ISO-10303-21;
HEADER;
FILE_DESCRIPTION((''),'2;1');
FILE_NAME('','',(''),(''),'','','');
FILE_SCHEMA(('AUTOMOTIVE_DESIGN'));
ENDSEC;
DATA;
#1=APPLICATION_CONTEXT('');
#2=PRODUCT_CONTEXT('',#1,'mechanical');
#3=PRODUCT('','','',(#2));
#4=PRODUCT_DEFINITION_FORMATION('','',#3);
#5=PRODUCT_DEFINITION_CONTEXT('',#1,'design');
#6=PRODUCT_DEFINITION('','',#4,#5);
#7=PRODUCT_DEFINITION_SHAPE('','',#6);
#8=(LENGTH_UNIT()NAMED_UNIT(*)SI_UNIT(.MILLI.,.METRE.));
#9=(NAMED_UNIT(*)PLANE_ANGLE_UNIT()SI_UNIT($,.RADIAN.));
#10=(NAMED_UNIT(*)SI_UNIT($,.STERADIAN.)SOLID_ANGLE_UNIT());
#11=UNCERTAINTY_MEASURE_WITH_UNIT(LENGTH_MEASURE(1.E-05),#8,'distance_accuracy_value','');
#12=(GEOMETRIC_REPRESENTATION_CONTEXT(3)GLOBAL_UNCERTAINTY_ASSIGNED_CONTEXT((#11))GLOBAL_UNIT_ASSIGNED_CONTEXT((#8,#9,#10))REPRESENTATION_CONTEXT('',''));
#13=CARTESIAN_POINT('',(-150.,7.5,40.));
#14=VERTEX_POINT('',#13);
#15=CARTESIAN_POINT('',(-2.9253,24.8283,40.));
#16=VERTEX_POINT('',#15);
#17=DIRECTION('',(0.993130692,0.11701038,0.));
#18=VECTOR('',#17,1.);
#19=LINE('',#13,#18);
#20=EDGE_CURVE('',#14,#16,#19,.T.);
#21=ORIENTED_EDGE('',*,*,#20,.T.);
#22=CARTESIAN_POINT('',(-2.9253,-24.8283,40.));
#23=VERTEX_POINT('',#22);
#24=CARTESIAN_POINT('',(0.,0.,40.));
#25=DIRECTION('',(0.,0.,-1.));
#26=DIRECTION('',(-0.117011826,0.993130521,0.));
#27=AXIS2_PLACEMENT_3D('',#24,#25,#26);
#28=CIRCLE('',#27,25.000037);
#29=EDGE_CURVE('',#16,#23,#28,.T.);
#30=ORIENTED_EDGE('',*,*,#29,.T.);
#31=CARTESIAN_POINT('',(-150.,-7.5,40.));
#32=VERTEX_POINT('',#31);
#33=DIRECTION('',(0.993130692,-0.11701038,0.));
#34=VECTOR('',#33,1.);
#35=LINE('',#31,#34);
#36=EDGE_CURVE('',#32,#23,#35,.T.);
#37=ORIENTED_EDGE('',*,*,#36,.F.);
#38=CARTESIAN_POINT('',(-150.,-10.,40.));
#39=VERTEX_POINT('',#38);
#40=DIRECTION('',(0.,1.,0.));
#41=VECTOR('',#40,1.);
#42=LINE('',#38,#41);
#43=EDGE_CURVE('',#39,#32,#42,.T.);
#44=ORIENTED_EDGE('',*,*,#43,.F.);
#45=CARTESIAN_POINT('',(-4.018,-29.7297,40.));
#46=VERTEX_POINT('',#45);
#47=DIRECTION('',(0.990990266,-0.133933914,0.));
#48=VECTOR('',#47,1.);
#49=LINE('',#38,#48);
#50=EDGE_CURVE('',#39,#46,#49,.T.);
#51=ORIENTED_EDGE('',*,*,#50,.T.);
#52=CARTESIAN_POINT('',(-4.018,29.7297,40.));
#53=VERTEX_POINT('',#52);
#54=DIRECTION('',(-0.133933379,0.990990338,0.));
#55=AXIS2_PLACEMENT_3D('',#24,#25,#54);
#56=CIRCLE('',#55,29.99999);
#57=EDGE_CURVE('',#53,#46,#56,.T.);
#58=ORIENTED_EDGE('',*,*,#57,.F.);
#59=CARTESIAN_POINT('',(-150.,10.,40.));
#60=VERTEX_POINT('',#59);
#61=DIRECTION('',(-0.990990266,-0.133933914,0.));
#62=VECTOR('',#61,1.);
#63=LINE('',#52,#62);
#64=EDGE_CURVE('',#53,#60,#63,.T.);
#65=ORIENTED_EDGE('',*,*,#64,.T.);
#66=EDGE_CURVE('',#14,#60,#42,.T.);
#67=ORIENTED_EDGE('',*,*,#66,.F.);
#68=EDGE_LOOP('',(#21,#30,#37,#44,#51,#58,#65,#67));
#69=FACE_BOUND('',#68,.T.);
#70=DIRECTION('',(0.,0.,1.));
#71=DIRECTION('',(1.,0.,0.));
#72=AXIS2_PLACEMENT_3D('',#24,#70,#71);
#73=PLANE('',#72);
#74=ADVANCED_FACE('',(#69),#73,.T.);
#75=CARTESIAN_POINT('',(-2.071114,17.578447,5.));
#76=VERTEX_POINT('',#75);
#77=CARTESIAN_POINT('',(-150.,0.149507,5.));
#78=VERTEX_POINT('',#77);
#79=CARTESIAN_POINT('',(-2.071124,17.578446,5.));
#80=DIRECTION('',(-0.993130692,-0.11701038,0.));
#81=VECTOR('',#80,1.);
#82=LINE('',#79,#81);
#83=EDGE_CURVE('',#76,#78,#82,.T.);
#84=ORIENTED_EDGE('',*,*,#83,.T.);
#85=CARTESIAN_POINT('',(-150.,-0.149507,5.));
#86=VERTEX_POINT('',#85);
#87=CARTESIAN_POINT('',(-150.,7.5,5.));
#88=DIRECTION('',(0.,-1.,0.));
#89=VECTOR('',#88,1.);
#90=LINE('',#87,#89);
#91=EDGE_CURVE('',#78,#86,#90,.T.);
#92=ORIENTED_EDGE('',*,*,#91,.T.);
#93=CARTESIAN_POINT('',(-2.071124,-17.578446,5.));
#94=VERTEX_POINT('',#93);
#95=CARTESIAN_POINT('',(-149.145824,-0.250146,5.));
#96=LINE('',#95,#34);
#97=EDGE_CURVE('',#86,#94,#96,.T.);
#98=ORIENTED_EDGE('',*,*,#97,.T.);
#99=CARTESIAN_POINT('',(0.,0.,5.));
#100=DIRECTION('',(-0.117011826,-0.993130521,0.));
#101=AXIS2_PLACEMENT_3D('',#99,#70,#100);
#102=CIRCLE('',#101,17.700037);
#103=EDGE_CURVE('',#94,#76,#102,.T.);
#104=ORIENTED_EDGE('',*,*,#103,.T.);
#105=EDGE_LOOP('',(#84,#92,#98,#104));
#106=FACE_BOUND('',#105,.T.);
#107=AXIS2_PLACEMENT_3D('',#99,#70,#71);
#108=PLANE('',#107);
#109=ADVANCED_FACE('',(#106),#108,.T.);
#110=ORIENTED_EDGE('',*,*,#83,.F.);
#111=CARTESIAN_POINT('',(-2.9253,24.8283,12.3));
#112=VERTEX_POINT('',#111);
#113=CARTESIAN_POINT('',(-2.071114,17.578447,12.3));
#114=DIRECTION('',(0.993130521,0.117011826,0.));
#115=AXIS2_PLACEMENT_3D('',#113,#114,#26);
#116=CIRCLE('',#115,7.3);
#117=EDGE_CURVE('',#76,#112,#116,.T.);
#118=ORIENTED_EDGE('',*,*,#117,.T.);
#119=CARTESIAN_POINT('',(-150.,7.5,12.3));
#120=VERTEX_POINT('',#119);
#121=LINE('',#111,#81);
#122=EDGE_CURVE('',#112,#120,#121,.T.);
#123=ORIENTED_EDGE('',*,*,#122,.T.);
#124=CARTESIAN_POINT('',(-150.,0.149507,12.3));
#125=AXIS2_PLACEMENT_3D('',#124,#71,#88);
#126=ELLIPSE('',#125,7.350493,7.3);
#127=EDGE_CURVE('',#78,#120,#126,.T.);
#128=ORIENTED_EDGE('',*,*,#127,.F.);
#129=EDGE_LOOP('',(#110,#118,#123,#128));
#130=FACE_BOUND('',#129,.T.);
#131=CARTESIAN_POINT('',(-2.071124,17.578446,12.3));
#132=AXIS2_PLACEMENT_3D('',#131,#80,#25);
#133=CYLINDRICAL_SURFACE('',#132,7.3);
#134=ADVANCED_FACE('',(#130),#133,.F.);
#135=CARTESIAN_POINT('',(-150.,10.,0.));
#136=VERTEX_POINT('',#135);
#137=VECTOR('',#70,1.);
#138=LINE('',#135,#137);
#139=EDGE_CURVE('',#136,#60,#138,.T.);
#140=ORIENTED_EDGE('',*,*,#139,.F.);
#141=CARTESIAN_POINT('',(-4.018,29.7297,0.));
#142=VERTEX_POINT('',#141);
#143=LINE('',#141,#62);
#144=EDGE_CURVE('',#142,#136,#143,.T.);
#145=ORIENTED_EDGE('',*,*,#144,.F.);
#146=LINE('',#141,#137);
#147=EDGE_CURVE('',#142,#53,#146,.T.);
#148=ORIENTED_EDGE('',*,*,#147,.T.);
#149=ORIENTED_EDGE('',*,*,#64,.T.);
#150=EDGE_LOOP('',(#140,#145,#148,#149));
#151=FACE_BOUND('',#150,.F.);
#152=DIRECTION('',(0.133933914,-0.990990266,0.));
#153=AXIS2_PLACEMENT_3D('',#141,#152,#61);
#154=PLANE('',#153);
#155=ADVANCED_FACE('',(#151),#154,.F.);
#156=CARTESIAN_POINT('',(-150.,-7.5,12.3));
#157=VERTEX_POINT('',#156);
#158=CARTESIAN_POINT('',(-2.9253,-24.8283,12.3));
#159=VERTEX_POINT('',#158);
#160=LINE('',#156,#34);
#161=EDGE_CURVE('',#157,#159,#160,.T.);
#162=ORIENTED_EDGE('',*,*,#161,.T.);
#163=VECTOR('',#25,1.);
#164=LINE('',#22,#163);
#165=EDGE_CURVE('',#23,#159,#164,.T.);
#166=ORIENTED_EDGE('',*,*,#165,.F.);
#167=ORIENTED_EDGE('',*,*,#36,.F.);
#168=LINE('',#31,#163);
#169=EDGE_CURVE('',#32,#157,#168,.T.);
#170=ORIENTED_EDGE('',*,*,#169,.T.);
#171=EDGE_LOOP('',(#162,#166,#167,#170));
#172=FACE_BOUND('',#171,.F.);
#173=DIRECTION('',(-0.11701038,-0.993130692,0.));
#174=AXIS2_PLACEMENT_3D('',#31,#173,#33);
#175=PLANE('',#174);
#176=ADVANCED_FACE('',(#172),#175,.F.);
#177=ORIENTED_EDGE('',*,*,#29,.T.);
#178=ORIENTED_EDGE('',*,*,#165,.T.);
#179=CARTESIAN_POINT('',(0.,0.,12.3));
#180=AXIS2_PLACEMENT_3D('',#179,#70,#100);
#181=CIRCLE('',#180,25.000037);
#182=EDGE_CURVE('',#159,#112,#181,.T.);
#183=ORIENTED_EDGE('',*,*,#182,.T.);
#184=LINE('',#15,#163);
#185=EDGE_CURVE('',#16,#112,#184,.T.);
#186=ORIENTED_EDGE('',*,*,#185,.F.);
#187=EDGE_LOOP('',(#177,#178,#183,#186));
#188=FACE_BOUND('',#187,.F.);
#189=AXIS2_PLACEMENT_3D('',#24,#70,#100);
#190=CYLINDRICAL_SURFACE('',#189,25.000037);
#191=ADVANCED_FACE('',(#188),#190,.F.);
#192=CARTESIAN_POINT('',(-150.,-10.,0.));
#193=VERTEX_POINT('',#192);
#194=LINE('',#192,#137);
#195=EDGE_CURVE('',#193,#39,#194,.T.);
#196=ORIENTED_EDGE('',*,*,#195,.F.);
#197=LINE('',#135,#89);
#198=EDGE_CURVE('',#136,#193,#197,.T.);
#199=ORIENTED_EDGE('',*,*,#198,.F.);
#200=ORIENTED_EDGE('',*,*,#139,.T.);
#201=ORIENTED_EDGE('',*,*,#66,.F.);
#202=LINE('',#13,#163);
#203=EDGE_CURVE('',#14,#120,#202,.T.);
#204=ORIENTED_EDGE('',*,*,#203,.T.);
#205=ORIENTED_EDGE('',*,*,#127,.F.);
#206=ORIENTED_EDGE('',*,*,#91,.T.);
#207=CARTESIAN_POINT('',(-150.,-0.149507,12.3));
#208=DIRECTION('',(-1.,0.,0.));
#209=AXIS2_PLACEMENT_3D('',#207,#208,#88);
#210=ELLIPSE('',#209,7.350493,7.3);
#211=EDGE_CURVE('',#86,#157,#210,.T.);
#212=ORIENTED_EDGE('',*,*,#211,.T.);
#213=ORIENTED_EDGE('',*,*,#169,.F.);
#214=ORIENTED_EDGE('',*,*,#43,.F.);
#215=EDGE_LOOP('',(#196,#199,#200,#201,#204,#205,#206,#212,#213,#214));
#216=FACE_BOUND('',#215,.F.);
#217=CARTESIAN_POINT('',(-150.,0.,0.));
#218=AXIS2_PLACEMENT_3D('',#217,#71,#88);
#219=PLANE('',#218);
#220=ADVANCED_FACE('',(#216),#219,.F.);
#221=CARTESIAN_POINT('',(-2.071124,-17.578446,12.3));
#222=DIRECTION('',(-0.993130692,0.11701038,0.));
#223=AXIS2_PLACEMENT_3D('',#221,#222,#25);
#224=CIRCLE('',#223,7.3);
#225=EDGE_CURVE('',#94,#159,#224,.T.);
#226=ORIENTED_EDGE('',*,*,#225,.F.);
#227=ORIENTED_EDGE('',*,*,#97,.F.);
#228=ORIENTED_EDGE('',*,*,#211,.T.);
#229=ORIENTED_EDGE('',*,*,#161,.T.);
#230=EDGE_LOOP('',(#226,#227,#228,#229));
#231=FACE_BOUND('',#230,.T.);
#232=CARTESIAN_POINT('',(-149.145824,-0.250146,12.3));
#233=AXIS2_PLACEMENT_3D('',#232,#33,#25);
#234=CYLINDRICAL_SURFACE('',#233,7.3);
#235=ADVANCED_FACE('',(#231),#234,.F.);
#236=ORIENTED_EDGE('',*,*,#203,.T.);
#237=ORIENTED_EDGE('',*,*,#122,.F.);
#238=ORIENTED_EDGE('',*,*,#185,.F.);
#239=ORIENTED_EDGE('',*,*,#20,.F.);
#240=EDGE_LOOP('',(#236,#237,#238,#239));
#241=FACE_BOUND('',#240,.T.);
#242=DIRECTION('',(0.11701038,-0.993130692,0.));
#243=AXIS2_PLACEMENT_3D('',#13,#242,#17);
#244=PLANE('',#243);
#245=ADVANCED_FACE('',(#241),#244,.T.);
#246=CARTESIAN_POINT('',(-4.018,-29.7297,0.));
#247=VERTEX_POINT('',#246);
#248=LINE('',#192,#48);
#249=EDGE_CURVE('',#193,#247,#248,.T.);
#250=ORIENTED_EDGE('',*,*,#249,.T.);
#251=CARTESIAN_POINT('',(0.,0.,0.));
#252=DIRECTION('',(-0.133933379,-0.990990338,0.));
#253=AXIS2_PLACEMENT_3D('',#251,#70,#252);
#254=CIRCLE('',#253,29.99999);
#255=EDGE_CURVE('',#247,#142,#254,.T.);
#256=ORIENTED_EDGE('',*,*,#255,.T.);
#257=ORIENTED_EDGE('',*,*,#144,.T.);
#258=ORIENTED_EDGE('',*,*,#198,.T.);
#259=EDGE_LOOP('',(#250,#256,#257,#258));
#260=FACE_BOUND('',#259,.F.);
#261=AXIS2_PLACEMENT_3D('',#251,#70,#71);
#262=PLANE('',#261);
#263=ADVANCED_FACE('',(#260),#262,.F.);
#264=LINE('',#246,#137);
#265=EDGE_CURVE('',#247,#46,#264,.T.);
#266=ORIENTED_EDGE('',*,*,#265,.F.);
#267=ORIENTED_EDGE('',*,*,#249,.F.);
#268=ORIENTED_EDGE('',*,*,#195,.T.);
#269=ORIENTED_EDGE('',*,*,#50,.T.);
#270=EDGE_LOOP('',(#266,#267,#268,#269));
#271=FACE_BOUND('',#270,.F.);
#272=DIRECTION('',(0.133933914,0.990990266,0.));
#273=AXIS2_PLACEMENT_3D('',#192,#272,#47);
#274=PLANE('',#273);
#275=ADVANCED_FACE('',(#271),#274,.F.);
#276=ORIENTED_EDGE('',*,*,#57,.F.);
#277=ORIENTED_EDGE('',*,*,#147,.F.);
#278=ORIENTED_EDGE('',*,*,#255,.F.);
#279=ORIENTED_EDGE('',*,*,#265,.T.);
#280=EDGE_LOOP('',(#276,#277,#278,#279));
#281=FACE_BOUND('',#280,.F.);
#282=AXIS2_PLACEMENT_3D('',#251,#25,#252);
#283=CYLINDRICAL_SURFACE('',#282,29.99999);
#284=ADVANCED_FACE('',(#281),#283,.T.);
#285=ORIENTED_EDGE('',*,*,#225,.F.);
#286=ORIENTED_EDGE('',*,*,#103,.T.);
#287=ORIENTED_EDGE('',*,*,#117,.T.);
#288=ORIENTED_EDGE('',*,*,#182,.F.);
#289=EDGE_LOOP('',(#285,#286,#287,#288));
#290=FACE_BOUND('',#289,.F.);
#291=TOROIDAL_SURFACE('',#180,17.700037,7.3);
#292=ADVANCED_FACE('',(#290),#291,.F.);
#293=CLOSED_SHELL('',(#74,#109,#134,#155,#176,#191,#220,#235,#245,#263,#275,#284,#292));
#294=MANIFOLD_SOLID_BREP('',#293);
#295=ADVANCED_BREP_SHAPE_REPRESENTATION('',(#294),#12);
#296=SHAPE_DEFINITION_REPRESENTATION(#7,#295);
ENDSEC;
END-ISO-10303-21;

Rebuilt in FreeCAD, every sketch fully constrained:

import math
import FreeCAD as App
import Part
import Sketcher

V = App.Vector


def edges_at(feature, points):
    """Names of the edges that pass closest to the given points."""
    edges = feature.Shape.Edges
    near = lambda p: min(range(len(edges)), key=lambda i: edges[i].distToShape(Part.Vertex(*p))[0])
    return sorted({f"Edge{near(p) + 1}" for p in points})

doc = App.newDocument("Part")
body = doc.addObject("PartDesign::Body", "Body")

sketch1 = body.newObject("Sketcher::SketchObject", "Sketch")
sketch1.AttachmentSupport = (doc.getObject("XY_Plane"), [""])
sketch1.MapMode = "FlatFace"
sketch1.addGeometry(Part.LineSegment(V(-150, -10, 0), V(-4, -30, 0)), False)
sketch1.addGeometry(Part.ArcOfCircle(Part.Circle(V(0, 0, 0), V(0, 0, 1), 30), math.radians(-98), math.radians(98)), False)
sketch1.addGeometry(Part.LineSegment(V(-4, 30, 0), V(-150, 10, 0)), False)
sketch1.addGeometry(Part.LineSegment(V(-150, 10, 0), V(-150, -10, 0)), False)
sketch1.addConstraint(Sketcher.Constraint("Tangent", 0, 2, 1, 1))
sketch1.addConstraint(Sketcher.Constraint("Tangent", 1, 2, 2, 1))
sketch1.addConstraint(Sketcher.Constraint("Coincident", 2, 2, 3, 1))
sketch1.addConstraint(Sketcher.Constraint("Coincident", 3, 2, 0, 1))
sketch1.addConstraint(Sketcher.Constraint("Vertical", 3))
sketch1.addConstraint(Sketcher.Constraint("Coincident", 1, 3, -1, 1))
sketch1.addConstraint(Sketcher.Constraint("Vertical", 0, 2, 1, 2))
sketch1.addConstraint(Sketcher.Constraint("Radius", 1, 30.0))
sketch1.addConstraint(Sketcher.Constraint("DistanceY", 3, 2, 3, 1, 20.0))
sketch1.addConstraint(Sketcher.Constraint("DistanceX", 2, 2, -1, 1, 150.0))
pad1 = body.newObject("PartDesign::Pad", "Pad")
pad1.Profile = sketch1
pad1.Length = 40

sketch2 = body.newObject("Sketcher::SketchObject", "Sketch001")
sketch2.AttachmentSupport = (doc.getObject("XY_Plane"), [""])
sketch2.MapMode = "FlatFace"
sketch2.AttachmentOffset = App.Placement(V(0, 0, 40), App.Rotation())
sketch2.addGeometry(Part.LineSegment(V(-3, 25, 0), V(-150, 8, 0)), False)
sketch2.addGeometry(Part.LineSegment(V(-150, 8, 0), V(-150, -8, 0)), False)
sketch2.addGeometry(Part.LineSegment(V(-150, -8, 0), V(-3, -25, 0)), False)
sketch2.addGeometry(Part.ArcOfCircle(Part.Circle(V(0, 0, 0), V(0, 0, 1), 25), math.radians(-97), math.radians(97)), False)
sketch2.addConstraint(Sketcher.Constraint("Coincident", 0, 2, 1, 1))
sketch2.addConstraint(Sketcher.Constraint("Coincident", 1, 2, 2, 1))
sketch2.addConstraint(Sketcher.Constraint("Tangent", 2, 2, 3, 1))
sketch2.addConstraint(Sketcher.Constraint("Tangent", 3, 2, 0, 1))
sketch2.addConstraint(Sketcher.Constraint("Vertical", 1))
sketch2.addConstraint(Sketcher.Constraint("Coincident", 3, 3, -1, 1))
sketch2.addConstraint(Sketcher.Constraint("Vertical", 2, 2, 3, 2))
sketch2.addConstraint(Sketcher.Constraint("Radius", 3, 25.0))
sketch2.addConstraint(Sketcher.Constraint("DistanceY", 1, 2, 1, 1, 15.0))
sketch2.addConstraint(Sketcher.Constraint("DistanceX", 0, 2, -1, 1, 150.0))
pocket1 = body.newObject("PartDesign::Pocket", "Pocket")
pocket1.Profile = sketch2
pocket1.Length = 35
doc.recompute()

fillet = body.newObject("PartDesign::Fillet", "Fillet")
fillet.Base = (pocket1, edges_at(pocket1, [(25, 0, 5), (-76.463, -16.164, 5), (-76.463, 16.164, 5)]))
fillet.Radius = 7.3

doc.recompute()
